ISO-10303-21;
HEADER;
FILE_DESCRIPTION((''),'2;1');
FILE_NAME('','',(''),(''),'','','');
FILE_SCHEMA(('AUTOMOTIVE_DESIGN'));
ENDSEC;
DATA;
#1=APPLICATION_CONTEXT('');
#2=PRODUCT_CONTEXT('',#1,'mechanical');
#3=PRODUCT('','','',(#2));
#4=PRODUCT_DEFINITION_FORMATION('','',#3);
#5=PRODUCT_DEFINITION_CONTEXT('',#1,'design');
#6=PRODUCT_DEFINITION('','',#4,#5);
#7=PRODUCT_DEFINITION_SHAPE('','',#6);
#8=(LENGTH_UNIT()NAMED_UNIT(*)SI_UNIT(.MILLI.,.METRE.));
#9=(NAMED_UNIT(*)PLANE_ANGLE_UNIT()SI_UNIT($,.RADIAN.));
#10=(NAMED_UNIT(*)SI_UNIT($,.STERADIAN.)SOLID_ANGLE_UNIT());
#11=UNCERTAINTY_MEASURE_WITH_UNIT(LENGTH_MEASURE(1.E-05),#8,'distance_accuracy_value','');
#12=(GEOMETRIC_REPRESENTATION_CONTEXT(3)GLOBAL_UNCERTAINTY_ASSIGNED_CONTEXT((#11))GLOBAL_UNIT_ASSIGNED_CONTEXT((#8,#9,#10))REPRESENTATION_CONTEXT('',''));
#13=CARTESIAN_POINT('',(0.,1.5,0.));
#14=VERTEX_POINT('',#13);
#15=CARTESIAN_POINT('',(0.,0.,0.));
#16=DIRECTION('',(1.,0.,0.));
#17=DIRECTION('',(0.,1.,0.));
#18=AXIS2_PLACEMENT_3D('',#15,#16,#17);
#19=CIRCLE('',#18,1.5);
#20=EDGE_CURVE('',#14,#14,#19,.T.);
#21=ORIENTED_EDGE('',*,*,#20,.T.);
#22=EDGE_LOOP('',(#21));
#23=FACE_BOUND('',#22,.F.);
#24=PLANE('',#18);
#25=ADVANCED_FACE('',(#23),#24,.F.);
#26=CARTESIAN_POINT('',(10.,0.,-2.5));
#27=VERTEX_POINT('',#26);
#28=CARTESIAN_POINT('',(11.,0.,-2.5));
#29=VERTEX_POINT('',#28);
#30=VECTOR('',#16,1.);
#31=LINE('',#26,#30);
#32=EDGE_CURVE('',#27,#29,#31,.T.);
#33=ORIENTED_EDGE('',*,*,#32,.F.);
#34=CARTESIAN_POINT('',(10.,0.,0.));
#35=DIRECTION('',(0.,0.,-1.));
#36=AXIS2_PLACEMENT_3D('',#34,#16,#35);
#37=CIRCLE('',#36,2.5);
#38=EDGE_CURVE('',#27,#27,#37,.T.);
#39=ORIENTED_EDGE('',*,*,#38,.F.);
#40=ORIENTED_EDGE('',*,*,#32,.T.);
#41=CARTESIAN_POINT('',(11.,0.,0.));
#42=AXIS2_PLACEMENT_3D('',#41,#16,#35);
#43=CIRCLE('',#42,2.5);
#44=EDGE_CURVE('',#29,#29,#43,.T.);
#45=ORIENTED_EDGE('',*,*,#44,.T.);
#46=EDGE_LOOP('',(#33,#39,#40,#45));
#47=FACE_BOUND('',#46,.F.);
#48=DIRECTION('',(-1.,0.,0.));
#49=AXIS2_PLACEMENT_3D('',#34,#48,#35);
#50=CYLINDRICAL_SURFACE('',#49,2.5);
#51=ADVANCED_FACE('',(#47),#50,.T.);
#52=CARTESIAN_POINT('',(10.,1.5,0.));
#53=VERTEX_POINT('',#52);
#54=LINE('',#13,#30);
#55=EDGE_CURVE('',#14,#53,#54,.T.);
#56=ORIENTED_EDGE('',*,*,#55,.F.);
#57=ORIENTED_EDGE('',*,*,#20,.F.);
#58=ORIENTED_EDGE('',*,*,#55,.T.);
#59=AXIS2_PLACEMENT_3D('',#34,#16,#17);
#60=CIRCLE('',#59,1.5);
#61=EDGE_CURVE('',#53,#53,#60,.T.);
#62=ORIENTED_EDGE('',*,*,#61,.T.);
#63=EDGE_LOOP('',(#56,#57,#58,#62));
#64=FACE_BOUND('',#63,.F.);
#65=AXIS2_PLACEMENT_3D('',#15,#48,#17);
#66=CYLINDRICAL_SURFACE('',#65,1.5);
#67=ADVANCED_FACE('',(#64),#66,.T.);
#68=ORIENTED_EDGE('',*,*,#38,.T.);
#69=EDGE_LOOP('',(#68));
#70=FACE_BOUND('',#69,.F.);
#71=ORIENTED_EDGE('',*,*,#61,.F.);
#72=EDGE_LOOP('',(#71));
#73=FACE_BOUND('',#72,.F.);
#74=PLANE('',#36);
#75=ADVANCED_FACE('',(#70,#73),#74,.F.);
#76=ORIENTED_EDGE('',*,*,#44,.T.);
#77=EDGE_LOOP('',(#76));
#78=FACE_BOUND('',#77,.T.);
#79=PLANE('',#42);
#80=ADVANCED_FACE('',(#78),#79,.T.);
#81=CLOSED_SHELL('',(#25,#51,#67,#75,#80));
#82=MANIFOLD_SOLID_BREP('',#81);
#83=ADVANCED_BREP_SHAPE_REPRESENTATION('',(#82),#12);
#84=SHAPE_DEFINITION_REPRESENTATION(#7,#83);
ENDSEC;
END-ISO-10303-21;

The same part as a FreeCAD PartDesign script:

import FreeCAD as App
import Part
import Sketcher
from FreeCAD import Vector

doc = App.newDocument("Part")
body = doc.addObject("PartDesign::Body", "Body")

sketch1 = body.newObject("Sketcher::SketchObject", "Sketch")
sketch1.AttachmentSupport = (doc.getObject("YZ_Plane"), [""])
sketch1.MapMode = "FlatFace"
sketch1.addGeometry(Part.Circle(Vector(0, 0, 0), Vector(0, 0, 1), 1.5), False)
sketch1.addConstraint(Sketcher.Constraint("Coincident", 0, 3, -1, 1))
sketch1.addConstraint(Sketcher.Constraint("Diameter", 0, 3.0))
pad1 = body.newObject("PartDesign::Pad", "Pad")
pad1.Profile = sketch1
pad1.Length = 10

sketch2 = body.newObject("Sketcher::SketchObject", "Sketch001")
sketch2.AttachmentSupport = (doc.getObject("YZ_Plane"), [""])
sketch2.MapMode = "FlatFace"
sketch2.AttachmentOffset = App.Placement(Vector(0, 0, 10), App.Rotation())
sketch2.addGeometry(Part.Circle(Vector(0, 0, 0), Vector(0, 0, 1), 2.5), False)
sketch2.addConstraint(Sketcher.Constraint("Coincident", 0, 3, -1, 1))
sketch2.addConstraint(Sketcher.Constraint("Diameter", 0, 5.0))
pad2 = body.newObject("PartDesign::Pad", "Pad001")
pad2.Profile = sketch2
pad2.Length = 1

doc.recompute()
